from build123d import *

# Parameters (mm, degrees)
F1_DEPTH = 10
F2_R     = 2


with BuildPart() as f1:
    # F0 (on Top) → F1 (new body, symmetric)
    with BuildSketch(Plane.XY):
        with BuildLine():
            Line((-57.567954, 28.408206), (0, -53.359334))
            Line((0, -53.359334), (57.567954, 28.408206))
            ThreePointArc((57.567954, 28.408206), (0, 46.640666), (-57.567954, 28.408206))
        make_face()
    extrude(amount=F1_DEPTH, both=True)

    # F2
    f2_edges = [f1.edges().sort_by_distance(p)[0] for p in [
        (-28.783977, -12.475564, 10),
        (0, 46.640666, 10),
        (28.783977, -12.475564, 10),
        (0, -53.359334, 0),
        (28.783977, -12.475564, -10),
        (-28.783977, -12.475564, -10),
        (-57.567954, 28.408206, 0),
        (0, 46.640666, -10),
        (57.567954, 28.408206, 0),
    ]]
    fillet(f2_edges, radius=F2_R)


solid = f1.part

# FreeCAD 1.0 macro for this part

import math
import FreeCAD as App
import Part
import Sketcher

doc = App.newDocument("Part")
body = doc.addObject("PartDesign::Body", "Body")

sketch1 = body.newObject("Sketcher::SketchObject", "Sketch")
sketch1.AttachmentSupport = (doc.getObject("XY_Plane"), [""])
sketch1.MapMode = "FlatFace"
sketch1.addGeometry([
    Part.LineSegment(App.Vector(-57.567954, 28.408206, 0), App.Vector(0, -53.359334, 0)),
    Part.LineSegment(App.Vector(0, -53.359334, 0), App.Vector(57.567954, 28.408206, 0)),
    Part.ArcOfCircle(Part.Circle(App.Vector(0, -53.359332, 0), App.Vector(0, 0, 1), 99.999998), math.radians(54.852764), math.radians(125.147236)),
], False)
sketch1.addConstraint([
    Sketcher.Constraint("Coincident", 0, 2, 1, 1),
    Sketcher.Constraint("Coincident", 1, 2, 2, 1),
    Sketcher.Constraint("Coincident", 2, 2, 0, 1),
    Sketcher.Constraint("Coincident", 0, 2, 2, 3),
    Sketcher.Constraint("Symmetric", 1, 2, 2, 2, -2),
    Sketcher.Constraint("Distance", 0, 100.0),
    Sketcher.Constraint("DistanceY", 2, 3, -1, 1, 53.359332),
    Sketcher.Constraint("DistanceY", 0, 2, 1, 2, 81.76754),
])
pad1 = body.newObject("PartDesign::Pad", "Pad")
pad1.Profile = sketch1
pad1.Length = 20
pad1.Midplane = True
doc.recompute()

fillet = body.newObject("PartDesign::Fillet", "Fillet")
fillet.Base = (pad1, ["Edge1"])
fillet.UseAllEdges = True
fillet.Radius = 2

doc.recompute()
